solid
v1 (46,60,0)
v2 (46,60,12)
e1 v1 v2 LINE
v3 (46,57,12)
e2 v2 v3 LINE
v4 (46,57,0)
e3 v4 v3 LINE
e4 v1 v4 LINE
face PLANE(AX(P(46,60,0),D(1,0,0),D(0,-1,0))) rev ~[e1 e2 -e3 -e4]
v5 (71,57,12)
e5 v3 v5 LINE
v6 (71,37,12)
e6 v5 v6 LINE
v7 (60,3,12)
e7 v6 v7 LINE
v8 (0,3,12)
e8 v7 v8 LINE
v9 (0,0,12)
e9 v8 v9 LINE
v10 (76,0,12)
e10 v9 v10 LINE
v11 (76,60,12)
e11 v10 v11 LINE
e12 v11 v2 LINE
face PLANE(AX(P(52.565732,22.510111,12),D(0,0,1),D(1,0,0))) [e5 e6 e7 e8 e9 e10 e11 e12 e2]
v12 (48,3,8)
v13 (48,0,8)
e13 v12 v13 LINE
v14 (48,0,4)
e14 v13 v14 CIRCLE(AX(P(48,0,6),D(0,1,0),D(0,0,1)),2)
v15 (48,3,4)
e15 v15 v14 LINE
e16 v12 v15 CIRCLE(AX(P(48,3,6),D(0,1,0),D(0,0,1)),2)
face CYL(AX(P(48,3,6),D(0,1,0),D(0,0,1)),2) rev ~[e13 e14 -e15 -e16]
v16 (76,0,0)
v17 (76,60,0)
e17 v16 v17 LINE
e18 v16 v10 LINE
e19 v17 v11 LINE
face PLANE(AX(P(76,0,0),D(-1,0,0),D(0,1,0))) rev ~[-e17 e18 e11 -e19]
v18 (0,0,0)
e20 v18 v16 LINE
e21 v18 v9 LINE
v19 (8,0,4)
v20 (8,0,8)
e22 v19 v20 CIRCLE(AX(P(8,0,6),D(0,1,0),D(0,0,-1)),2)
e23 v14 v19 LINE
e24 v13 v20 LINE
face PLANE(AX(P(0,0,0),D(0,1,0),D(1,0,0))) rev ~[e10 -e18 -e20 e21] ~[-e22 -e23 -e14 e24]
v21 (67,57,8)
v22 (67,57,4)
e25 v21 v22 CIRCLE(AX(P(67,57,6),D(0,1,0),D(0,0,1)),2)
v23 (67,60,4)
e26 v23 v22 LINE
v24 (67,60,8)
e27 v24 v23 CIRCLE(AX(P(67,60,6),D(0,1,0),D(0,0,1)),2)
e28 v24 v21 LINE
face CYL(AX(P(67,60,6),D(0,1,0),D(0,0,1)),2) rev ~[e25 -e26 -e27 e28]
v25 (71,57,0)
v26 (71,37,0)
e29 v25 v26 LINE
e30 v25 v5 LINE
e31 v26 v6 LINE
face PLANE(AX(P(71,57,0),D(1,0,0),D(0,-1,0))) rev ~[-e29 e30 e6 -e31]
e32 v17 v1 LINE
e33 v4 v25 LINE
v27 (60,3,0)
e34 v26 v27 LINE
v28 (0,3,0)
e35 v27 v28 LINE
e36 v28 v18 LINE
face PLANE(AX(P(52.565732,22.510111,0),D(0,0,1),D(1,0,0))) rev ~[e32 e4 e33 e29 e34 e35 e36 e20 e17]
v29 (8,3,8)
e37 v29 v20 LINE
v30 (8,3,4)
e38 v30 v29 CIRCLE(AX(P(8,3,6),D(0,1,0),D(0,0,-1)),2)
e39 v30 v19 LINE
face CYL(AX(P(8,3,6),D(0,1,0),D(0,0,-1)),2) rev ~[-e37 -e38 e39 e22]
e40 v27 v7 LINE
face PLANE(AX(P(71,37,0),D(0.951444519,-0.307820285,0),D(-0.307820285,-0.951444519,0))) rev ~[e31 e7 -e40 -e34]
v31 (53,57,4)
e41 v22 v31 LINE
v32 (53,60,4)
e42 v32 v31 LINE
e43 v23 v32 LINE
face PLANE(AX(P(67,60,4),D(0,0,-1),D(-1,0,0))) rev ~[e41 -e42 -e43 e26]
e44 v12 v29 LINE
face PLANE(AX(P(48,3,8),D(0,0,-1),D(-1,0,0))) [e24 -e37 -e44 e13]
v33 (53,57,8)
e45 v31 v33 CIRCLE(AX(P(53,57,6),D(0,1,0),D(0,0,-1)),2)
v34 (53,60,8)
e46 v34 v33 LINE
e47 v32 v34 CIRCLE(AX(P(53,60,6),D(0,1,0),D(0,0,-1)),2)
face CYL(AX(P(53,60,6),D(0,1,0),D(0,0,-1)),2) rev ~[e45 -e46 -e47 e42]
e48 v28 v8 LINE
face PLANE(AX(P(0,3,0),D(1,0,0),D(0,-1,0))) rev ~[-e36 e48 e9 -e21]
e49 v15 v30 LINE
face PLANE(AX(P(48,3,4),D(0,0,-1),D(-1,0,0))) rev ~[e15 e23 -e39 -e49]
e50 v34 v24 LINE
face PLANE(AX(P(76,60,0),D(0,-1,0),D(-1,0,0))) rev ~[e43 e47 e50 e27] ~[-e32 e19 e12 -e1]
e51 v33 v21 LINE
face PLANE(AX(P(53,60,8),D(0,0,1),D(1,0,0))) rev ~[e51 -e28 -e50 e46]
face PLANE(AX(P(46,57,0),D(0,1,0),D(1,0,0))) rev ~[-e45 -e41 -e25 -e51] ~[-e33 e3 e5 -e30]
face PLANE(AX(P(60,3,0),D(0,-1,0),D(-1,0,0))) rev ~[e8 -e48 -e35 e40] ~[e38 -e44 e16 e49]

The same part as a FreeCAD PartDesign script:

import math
import FreeCAD as App
import Part
import Sketcher

V = App.Vector
Q = App.Units.Quantity


def add_polygon(sketch, points):
    """Adds a closed chain of lines whose ends are joined by coincident constraints."""
    first, n = sketch.GeometryCount, len(points)
    for a, b in zip(points, points[1:] + points[:1]):
        sketch.addGeometry(Part.LineSegment(App.Vector(*a, 0), App.Vector(*b, 0)), False)
    for i in range(n):
        sketch.addConstraint(Sketcher.Constraint("Coincident", first + i, 2, first + (i + 1) % n, 1))

doc = App.newDocument("Part")
body = doc.addObject("PartDesign::Body", "Body")

# Sketch on XY plane
sketch1 = body.newObject("Sketcher::SketchObject", "Sketch")
sketch1.AttachmentSupport = (doc.getObject("XY_Plane"), [""])
sketch1.MapMode = "FlatFace"
add_polygon(sketch1, [(0, 0), (76, 0), (76, 60), (46, 60), (46, 57), (71, 57), (71, 37), (60, 3), (0, 3)])  # lines 0-8
sketch1.addConstraint([
    Sketcher.Constraint("Horizontal", 0),
    Sketcher.Constraint("Vertical", 1),
    Sketcher.Constraint("Horizontal", 2),
    Sketcher.Constraint("Vertical", 3),
    Sketcher.Constraint("Horizontal", 4),
    Sketcher.Constraint("Vertical", 5),
    Sketcher.Constraint("Horizontal", 7),
    Sketcher.Constraint("Vertical", 8),
    Sketcher.Constraint("Coincident", 8, 2, -1, 1),
    Sketcher.Constraint("Equal", 7, 1),
    Sketcher.Constraint("Equal", 3, 8),
    Sketcher.Constraint("DistanceX", 0, 1, 0, 2, Q("76 mm")),
    Sketcher.Constraint("DistanceX", 2, 2, 2, 1, Q("30 mm")),
    Sketcher.Constraint("DistanceX", 4, 1, 4, 2, Q("25 mm")),
    Sketcher.Constraint("DistanceX", 7, 2, 7, 1, Q("60 mm")),
    Sketcher.Constraint("DistanceY", 3, 2, 3, 1, Q("3 mm")),
    Sketcher.Constraint("DistanceY", 5, 2, 5, 1, Q("20 mm")),
])
pad1 = body.newObject("PartDesign::Pad", "Pad")
pad1.Profile = sketch1
pad1.Length = 12

# Sketch on XZ plane
sketch2 = body.newObject("Sketcher::SketchObject", "Sketch001")
sketch2.AttachmentSupport = (doc.getObject("XZ_Plane"), [""])
sketch2.MapMode = "FlatFace"
sketch2.AttachmentOffset = App.Placement(V(0, 0, -60), App.Rotation())
sketch2.addGeometry([
    Part.ArcOfCircle(Part.Circle(V(67, 6, 0), V(0, 0, 1), 2), math.radians(-90), math.radians(90)),
    Part.LineSegment(V(67, 4, 0), V(53, 4, 0)),
    Part.ArcOfCircle(Part.Circle(V(53, 6, 0), V(0, 0, 1), 2), math.radians(90), math.radians(270)),
    Part.LineSegment(V(53, 8, 0), V(67, 8, 0)),
], False)
sketch2.addConstraint([
    Sketcher.Constraint("Tangent", 0, 1, 1, 1),
    Sketcher.Constraint("Tangent", 1, 2, 2, 2),
    Sketcher.Constraint("Tangent", 2, 1, 3, 1),
    Sketcher.Constraint("Tangent", 3, 2, 0, 2),
    Sketcher.Constraint("Horizontal", 1),
    Sketcher.Constraint("Horizontal", 3),
    Sketcher.Constraint("Radius", 0, Q("2 mm")),
    Sketcher.Constraint("DistanceX", 1, 2, 1, 1, Q("14 mm")),
    Sketcher.Constraint("DistanceX", -1, 1, 0, 3, Q("67 mm")),
    Sketcher.Constraint("DistanceY", -1, 1, 0, 3, Q("6 mm")),
])
pocket1 = body.newObject("PartDesign::Pocket", "Pocket")
pocket1.Profile = sketch2
pocket1.Length = 5
pocket1.Reversed = True

# Sketch on XZ plane
sketch3 = body.newObject("Sketcher::SketchObject", "Sketch002")
sketch3.AttachmentSupport = (doc.getObject("XZ_Plane"), [""])
sketch3.MapMode = "FlatFace"
sketch3.AttachmentOffset = App.Placement(V(0, 0, -3), App.Rotation())
sketch3.addGeometry([
    Part.ArcOfCircle(Part.Circle(V(48, 6, 0), V(0, 0, 1), 2), math.radians(-90), math.radians(90)),
    Part.LineSegment(V(48, 4, 0), V(8, 4, 0)),
    Part.ArcOfCircle(Part.Circle(V(8, 6, 0), V(0, 0, 1), 2), math.radians(90), math.radians(270)),
    Part.LineSegment(V(8, 8, 0), V(48, 8, 0)),
], False)
sketch3.addConstraint([
    Sketcher.Constraint("Tangent", 0, 1, 1, 1),
    Sketcher.Constraint("Tangent", 1, 2, 2, 2),
    Sketcher.Constraint("Tangent", 2, 1, 3, 1),
    Sketcher.Constraint("Tangent", 3, 2, 0, 2),
    Sketcher.Constraint("Horizontal", 1),
    Sketcher.Constraint("Horizontal", 3),
    Sketcher.Constraint("Radius", 0, Q("2 mm")),
    Sketcher.Constraint("DistanceX", 1, 2, 1, 1, Q("40 mm")),
    Sketcher.Constraint("DistanceX", -1, 1, 0, 3, Q("48 mm")),
    Sketcher.Constraint("DistanceY", -1, 1, 0, 3, Q("6 mm")),
])
pocket2 = body.newObject("PartDesign::Pocket", "Pocket001")
pocket2.Profile = sketch3
pocket2.Length = 5
pocket2.Reversed = True

doc.recompute()
